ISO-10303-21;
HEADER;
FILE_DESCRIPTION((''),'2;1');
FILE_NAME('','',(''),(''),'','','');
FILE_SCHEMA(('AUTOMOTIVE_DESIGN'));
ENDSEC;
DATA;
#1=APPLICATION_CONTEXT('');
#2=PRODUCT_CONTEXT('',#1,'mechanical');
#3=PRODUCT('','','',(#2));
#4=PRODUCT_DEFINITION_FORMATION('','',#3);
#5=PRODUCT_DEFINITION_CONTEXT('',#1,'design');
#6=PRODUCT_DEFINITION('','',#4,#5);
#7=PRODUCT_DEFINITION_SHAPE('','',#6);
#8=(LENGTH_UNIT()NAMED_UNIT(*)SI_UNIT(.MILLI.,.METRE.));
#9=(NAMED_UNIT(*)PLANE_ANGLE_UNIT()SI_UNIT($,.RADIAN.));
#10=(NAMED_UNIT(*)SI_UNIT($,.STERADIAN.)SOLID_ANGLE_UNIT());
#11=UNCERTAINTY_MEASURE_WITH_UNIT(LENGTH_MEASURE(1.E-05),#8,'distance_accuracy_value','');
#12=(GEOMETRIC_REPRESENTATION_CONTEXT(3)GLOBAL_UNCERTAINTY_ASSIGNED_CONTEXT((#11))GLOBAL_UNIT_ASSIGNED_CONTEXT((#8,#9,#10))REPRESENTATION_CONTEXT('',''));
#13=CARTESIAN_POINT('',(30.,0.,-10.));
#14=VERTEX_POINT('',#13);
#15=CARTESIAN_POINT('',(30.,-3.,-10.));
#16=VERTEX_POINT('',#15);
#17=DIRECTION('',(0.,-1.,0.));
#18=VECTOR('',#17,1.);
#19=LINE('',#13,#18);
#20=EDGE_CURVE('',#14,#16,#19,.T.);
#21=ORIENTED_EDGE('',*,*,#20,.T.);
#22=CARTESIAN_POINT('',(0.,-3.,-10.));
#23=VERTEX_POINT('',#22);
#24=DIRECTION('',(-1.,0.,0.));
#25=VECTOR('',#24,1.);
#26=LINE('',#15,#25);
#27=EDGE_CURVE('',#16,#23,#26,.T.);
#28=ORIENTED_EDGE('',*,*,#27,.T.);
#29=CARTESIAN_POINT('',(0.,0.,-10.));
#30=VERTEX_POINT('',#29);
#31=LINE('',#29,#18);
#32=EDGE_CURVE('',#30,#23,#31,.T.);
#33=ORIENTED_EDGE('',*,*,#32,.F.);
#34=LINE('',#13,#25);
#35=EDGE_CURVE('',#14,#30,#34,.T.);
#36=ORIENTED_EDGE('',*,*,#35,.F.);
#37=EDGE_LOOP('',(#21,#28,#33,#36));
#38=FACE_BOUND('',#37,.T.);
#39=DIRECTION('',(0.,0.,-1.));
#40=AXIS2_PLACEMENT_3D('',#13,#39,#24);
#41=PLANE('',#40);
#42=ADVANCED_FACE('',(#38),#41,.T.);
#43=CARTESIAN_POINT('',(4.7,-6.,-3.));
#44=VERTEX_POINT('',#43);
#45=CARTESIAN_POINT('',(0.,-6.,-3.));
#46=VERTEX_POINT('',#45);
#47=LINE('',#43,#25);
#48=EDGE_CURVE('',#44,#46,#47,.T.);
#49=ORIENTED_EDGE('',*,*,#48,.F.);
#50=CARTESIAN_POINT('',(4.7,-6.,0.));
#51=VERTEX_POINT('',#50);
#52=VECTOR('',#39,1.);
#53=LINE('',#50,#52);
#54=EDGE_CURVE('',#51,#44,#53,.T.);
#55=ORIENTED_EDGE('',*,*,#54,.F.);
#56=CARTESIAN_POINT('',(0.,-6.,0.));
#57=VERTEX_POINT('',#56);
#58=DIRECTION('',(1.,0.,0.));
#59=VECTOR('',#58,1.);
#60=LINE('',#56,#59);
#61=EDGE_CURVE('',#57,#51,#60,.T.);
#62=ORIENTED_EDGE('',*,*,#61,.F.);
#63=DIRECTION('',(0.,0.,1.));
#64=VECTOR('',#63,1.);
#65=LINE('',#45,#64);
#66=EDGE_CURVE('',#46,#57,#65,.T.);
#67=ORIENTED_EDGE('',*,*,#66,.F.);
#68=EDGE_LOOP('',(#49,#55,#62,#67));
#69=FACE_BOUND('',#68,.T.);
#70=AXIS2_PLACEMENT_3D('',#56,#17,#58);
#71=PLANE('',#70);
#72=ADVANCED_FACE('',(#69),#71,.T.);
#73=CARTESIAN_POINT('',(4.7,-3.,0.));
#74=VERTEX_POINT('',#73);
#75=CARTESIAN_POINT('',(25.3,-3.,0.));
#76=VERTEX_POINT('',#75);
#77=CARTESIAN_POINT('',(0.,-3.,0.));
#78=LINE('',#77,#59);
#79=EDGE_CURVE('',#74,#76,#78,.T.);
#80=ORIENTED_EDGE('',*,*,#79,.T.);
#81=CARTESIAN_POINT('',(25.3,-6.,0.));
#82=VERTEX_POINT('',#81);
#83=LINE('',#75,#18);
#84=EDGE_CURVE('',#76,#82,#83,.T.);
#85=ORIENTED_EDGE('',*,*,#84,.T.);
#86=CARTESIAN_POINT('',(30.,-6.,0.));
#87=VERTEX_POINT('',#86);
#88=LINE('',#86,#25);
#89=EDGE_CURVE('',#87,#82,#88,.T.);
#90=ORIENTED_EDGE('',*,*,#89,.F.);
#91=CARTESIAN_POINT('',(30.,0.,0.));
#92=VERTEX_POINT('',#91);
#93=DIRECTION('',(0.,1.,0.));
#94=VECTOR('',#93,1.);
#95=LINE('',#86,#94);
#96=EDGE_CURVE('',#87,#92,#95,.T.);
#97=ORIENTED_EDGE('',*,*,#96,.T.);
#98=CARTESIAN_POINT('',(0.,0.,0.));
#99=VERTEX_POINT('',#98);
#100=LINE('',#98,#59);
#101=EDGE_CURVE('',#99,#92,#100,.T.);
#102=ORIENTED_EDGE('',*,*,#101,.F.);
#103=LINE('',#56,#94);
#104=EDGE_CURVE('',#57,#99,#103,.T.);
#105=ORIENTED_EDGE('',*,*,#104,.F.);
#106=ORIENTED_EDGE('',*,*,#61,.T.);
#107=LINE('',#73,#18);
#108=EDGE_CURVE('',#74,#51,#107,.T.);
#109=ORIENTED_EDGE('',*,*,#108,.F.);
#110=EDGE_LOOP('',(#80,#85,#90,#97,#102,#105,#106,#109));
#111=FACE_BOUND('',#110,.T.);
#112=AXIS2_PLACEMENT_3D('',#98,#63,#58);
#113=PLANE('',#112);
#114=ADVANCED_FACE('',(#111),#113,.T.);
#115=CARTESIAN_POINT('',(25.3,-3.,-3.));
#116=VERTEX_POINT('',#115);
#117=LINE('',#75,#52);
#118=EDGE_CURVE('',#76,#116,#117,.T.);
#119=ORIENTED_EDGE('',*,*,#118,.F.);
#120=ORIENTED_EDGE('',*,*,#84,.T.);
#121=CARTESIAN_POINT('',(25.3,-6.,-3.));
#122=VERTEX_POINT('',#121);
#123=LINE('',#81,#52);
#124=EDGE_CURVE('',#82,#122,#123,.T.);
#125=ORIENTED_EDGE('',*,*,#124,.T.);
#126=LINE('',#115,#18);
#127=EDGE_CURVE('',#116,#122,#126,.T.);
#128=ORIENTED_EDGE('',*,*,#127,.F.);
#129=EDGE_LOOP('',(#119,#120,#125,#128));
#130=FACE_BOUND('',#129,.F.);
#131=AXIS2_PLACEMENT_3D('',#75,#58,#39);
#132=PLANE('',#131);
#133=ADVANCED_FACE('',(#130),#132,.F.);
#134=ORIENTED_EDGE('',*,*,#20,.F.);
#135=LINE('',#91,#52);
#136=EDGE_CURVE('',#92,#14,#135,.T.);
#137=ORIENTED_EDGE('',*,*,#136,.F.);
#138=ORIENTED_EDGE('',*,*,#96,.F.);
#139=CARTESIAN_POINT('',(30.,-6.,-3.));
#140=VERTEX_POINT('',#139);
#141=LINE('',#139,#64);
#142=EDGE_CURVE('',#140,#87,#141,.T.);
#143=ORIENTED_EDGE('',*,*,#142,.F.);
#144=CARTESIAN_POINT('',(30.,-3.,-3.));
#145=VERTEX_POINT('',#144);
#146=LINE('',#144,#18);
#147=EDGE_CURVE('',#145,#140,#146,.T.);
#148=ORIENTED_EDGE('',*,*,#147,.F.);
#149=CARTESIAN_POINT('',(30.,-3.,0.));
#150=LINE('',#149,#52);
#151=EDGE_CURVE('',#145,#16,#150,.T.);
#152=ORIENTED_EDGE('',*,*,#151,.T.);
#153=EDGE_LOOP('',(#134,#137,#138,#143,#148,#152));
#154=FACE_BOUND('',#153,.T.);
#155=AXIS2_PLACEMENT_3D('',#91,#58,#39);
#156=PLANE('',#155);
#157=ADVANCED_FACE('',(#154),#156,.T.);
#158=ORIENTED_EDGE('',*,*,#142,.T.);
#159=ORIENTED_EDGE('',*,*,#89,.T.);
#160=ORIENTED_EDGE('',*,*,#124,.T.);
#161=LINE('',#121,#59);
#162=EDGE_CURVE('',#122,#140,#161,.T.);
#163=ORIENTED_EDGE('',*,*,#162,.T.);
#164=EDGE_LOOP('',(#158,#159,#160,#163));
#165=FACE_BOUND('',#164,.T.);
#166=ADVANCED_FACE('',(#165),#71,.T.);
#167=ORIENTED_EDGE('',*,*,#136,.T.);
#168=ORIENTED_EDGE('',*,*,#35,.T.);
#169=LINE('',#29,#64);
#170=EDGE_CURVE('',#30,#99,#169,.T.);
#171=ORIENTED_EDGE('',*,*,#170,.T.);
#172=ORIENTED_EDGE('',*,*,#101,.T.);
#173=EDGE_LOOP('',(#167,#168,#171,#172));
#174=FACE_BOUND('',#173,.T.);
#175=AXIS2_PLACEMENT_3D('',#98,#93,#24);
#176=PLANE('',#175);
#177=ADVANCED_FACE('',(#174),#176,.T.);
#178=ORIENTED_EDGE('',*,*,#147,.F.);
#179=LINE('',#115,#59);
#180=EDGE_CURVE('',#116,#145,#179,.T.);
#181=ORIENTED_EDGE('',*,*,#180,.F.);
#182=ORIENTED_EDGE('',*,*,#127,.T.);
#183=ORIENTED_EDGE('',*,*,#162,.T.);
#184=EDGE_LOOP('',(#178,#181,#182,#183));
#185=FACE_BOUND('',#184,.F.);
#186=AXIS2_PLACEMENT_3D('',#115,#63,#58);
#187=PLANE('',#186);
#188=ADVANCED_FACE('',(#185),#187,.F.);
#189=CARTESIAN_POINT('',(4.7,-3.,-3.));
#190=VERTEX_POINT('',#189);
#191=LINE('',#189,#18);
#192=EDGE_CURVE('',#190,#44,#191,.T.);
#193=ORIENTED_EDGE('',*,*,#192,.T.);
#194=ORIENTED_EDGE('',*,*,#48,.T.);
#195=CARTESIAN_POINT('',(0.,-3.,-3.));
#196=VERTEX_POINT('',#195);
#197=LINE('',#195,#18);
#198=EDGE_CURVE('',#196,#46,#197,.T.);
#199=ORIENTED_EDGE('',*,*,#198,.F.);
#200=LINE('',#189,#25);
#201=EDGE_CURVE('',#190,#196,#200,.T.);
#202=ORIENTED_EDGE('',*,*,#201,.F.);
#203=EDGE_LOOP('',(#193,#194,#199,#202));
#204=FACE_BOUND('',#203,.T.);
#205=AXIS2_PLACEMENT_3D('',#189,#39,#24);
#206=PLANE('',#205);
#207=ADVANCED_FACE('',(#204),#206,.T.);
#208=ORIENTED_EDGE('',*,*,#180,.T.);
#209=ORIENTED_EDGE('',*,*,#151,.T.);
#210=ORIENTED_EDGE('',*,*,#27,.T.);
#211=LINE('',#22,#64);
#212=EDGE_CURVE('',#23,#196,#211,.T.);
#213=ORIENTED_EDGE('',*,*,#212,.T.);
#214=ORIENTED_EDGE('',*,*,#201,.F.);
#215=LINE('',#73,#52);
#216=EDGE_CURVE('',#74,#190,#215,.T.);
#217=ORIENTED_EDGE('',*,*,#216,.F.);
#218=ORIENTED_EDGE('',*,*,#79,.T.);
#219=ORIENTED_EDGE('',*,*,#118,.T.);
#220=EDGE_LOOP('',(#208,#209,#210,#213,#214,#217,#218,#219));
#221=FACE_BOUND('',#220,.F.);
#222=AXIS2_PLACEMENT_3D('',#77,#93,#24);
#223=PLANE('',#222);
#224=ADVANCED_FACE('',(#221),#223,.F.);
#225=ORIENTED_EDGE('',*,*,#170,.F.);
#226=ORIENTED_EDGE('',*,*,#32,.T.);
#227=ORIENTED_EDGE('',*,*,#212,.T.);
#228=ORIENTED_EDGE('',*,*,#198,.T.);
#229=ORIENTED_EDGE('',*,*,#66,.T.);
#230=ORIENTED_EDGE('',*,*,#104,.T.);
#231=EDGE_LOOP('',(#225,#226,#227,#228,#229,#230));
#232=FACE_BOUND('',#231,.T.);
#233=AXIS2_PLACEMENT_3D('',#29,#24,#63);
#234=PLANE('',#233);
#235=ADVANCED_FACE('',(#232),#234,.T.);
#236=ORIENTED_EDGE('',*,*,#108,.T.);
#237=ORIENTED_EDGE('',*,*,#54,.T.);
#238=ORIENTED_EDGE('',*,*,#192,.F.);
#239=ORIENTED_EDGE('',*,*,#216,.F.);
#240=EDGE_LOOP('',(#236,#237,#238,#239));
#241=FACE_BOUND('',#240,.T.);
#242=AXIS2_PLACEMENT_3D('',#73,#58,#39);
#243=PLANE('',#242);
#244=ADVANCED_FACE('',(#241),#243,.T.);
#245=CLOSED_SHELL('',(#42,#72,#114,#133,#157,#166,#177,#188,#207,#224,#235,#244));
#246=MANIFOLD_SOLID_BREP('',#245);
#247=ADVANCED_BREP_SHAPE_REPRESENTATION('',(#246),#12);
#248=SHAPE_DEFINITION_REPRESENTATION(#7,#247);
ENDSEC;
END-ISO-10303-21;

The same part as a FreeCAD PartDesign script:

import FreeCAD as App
import Part
import Sketcher

V = App.Vector

doc = App.newDocument("Part")
body = doc.addObject("PartDesign::Body", "Body")

sketch1 = doc.addObject("Sketcher::SketchObject", "Sketch")
body.addObject(sketch1)
sketch1.AttachmentSupport = (doc.XZ_Plane, [""])
sketch1.MapMode = "FlatFace"
sketch1.addGeometry([
    Part.LineSegment(V(0, -10, 0), V(0, 0, 0)),
    Part.LineSegment(V(0, 0, 0), V(30, 0, 0)),
    Part.LineSegment(V(30, 0, 0), V(30, -10, 0)),
    Part.LineSegment(V(30, -10, 0), V(0, -10, 0)),
], False)
sketch1.addConstraint([
    Sketcher.Constraint("Coincident", 0, 2, 1, 1),
    Sketcher.Constraint("Coincident", 1, 2, 2, 1),
    Sketcher.Constraint("Coincident", 2, 2, 3, 1),
    Sketcher.Constraint("Coincident", 3, 2, 0, 1),
    Sketcher.Constraint("Vertical", 0),
    Sketcher.Constraint("Horizontal", 1),
    Sketcher.Constraint("Vertical", 2),
    Sketcher.Constraint("Horizontal", 3),
    Sketcher.Constraint("Coincident", 0, 2, -1, 1),
    Sketcher.Constraint("DistanceX", 1, 1, 1, 2, 30.0),
    Sketcher.Constraint("DistanceY", 0, 1, 0, 2, 10.0),
])
pad1 = doc.addObject("PartDesign::Pad", "Pad")
body.addObject(pad1)
pad1.Profile = sketch1
pad1.Length = 3

sketch2 = doc.addObject("Sketcher::SketchObject", "Sketch001")
body.addObject(sketch2)
sketch2.AttachmentSupport = (doc.XZ_Plane, [""])
sketch2.MapMode = "FlatFace"
sketch2.AttachmentOffset = App.Placement(V(0, 0, 3), App.Rotation())
sketch2.addGeometry([
    Part.LineSegment(V(30, -3, 0), V(30, 0, 0)),
    Part.LineSegment(V(30, 0, 0), V(25.3, 0, 0)),
    Part.LineSegment(V(25.3, 0, 0), V(25.3, -3, 0)),
    Part.LineSegment(V(25.3, -3, 0), V(30, -3, 0)),
    Part.LineSegment(V(4.7, 0, 0), V(0, 0, 0)),
    Part.LineSegment(V(0, 0, 0), V(0, -3, 0)),
    Part.LineSegment(V(0, -3, 0), V(4.7, -3, 0)),
    Part.LineSegment(V(4.7, -3, 0), V(4.7, 0, 0)),
], False)
sketch2.addConstraint([
    Sketcher.Constraint("Coincident", 0, 2, 1, 1),
    Sketcher.Constraint("Coincident", 1, 2, 2, 1),
    Sketcher.Constraint("Coincident", 2, 2, 3, 1),
    Sketcher.Constraint("Coincident", 3, 2, 0, 1),
    Sketcher.Constraint("Coincident", 4, 2, 5, 1),
    Sketcher.Constraint("Coincident", 5, 2, 6, 1),
    Sketcher.Constraint("Coincident", 6, 2, 7, 1),
    Sketcher.Constraint("Coincident", 7, 2, 4, 1),
    Sketcher.Constraint("Vertical", 0),
    Sketcher.Constraint("Horizontal", 1),
    Sketcher.Constraint("Vertical", 2),
    Sketcher.Constraint("Horizontal", 3),
    Sketcher.Constraint("Horizontal", 4),
    Sketcher.Constraint("Vertical", 5),
    Sketcher.Constraint("Horizontal", 6),
    Sketcher.Constraint("Vertical", 7),
    Sketcher.Constraint("Coincident", 4, 2, -1, 1),
    Sketcher.Constraint("PointOnObject", 0, 2, -1),
    Sketcher.Constraint("Horizontal", 3, 2, 5, 2),
    Sketcher.Constraint("Equal", 3, 4),
    Sketcher.Constraint("DistanceY", 0, 1, 0, 2, 3.0),
    Sketcher.Constraint("DistanceX", 1, 2, 1, 1, 4.7),
    Sketcher.Constraint("DistanceX", -1, 1, 0, 2, 30.0),
])
pad2 = doc.addObject("PartDesign::Pad", "Pad001")
body.addObject(pad2)
pad2.Profile = sketch2
pad2.Length = 3

doc.recompute()
